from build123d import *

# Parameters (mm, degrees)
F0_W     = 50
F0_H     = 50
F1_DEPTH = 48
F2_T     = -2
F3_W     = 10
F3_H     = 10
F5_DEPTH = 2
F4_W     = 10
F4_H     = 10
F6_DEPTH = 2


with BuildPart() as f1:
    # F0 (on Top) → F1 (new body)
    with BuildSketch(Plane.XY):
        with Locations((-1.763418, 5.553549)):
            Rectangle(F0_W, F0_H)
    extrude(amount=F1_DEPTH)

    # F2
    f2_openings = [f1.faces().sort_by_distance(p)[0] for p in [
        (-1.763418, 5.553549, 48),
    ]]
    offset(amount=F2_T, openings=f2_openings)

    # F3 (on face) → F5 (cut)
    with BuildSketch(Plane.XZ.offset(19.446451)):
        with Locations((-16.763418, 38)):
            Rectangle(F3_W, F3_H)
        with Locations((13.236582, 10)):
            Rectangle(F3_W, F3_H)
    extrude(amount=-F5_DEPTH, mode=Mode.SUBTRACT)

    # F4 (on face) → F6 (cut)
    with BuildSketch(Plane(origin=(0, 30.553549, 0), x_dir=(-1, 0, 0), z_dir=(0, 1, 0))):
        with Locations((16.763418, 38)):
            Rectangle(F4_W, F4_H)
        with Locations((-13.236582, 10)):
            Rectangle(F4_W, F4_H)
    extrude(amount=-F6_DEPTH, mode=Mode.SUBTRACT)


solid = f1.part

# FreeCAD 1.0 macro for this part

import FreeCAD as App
import Part
import Sketcher
Q = App.Units.Quantity


def faces_at(feature, points):
    """Names of the faces that lie closest to the given points."""
    faces = feature.Shape.Faces
    near = lambda p: min(range(len(faces)), key=lambda i: faces[i].distToShape(Part.Vertex(*p))[0])
    return sorted({f"Face{near(p) + 1}" for p in points})

doc = App.newDocument("Part")
body = doc.addObject("PartDesign::Body", "Body")

sketch1 = body.newObject("Sketcher::SketchObject", "Sketch")
sketch1.AttachmentSupport = (doc.getObject("XY_Plane"), [""])
sketch1.MapMode = "FlatFace"
sketch1.addGeometry([
    Part.LineSegment(App.Vector(-27, 31, 0), App.Vector(-27, -19, 0)),
    Part.LineSegment(App.Vector(-27, -19, 0), App.Vector(23, -19, 0)),
    Part.LineSegment(App.Vector(23, -19, 0), App.Vector(23, 31, 0)),
    Part.LineSegment(App.Vector(23, 31, 0), App.Vector(-27, 31, 0)),
], False)
sketch1.addConstraint([
    Sketcher.Constraint("Coincident", 0, 2, 1, 1),
    Sketcher.Constraint("Coincident", 1, 2, 2, 1),
    Sketcher.Constraint("Coincident", 2, 2, 3, 1),
    Sketcher.Constraint("Coincident", 3, 2, 0, 1),
    Sketcher.Constraint("Vertical", 0),
    Sketcher.Constraint("Horizontal", 1),
    Sketcher.Constraint("Vertical", 2),
    Sketcher.Constraint("Horizontal", 3),
    Sketcher.Constraint("Equal", 3, 0),
    Sketcher.Constraint("DistanceX", 1, 1, 1, 2, Q("50 mm")),
    Sketcher.Constraint("DistanceX", 0, 2, -1, 1, Q("26.763418 mm")),
    Sketcher.Constraint("DistanceY", 0, 2, -1, 1, Q("19.446451 mm")),
])
pad1 = body.newObject("PartDesign::Pad", "Pad")
pad1.Profile = sketch1
pad1.Length = 48
doc.recompute()

thickness = body.newObject("PartDesign::Thickness", "Thickness")
thickness.Base = (pad1, faces_at(pad1, [(-1.763, 5.554, 48)]))
thickness.Value = 2
thickness.Reversed = True
thickness.Join = "Arc"

sketch2 = body.newObject("Sketcher::SketchObject", "Sketch001")
sketch2.AttachmentSupport = (doc.getObject("XZ_Plane"), [""])
sketch2.MapMode = "FlatFace"
sketch2.AttachmentOffset = App.Placement(App.Vector(0, 0, 19.446451), App.Rotation())
sketch2.addGeometry([
    Part.LineSegment(App.Vector(-22, 43, 0), App.Vector(-22, 33, 0)),
    Part.LineSegment(App.Vector(-22, 33, 0), App.Vector(-12, 33, 0)),
    Part.LineSegment(App.Vector(-12, 33, 0), App.Vector(-12, 43, 0)),
    Part.LineSegment(App.Vector(-12, 43, 0), App.Vector(-22, 43, 0)),
    Part.LineSegment(App.Vector(8, 15, 0), App.Vector(8, 5, 0)),
    Part.LineSegment(App.Vector(8, 5, 0), App.Vector(18, 5, 0)),
    Part.LineSegment(App.Vector(18, 5, 0), App.Vector(18, 15, 0)),
    Part.LineSegment(App.Vector(18, 15, 0), App.Vector(8, 15, 0)),
], False)
sketch2.addConstraint([
    Sketcher.Constraint("Coincident", 0, 2, 1, 1),
    Sketcher.Constraint("Coincident", 1, 2, 2, 1),
    Sketcher.Constraint("Coincident", 2, 2, 3, 1),
    Sketcher.Constraint("Coincident", 3, 2, 0, 1),
    Sketcher.Constraint("Coincident", 4, 2, 5, 1),
    Sketcher.Constraint("Coincident", 5, 2, 6, 1),
    Sketcher.Constraint("Coincident", 6, 2, 7, 1),
    Sketcher.Constraint("Coincident", 7, 2, 4, 1),
    Sketcher.Constraint("Vertical", 0),
    Sketcher.Constraint("Horizontal", 1),
    Sketcher.Constraint("Vertical", 2),
    Sketcher.Constraint("Horizontal", 3),
    Sketcher.Constraint("Vertical", 4),
    Sketcher.Constraint("Horizontal", 5),
    Sketcher.Constraint("Vertical", 6),
    Sketcher.Constraint("Horizontal", 7),
    Sketcher.Constraint("Equal", 3, 5),
    Sketcher.Constraint("Equal", 7, 0),
    Sketcher.Constraint("Equal", 2, 4),
    Sketcher.Constraint("DistanceX", 1, 1, 1, 2, Q("10 mm")),
    Sketcher.Constraint("DistanceY", -1, 1, 0, 2, Q("33 mm")),
    Sketcher.Constraint("DistanceY", -1, 1, 4, 2, Q("5 mm")),
    Sketcher.Constraint("DistanceX", 1, 2, 4, 2, Q("20 mm")),
    Sketcher.Constraint("DistanceX", 0, 2, -1, 1, Q("21.763418 mm")),
])
pocket1 = body.newObject("PartDesign::Pocket", "Pocket")
pocket1.Profile = sketch2
pocket1.Length = 2

sketch3 = body.newObject("Sketcher::SketchObject", "Sketch002")
sketch3.AttachmentSupport = (doc.getObject("XZ_Plane"), [""])
sketch3.MapMode = "FlatFace"
sketch3.AttachmentOffset = App.Placement(App.Vector(0, 0, -30.553549), App.Rotation())
sketch3.addGeometry([
    Part.LineSegment(App.Vector(-12, 43, 0), App.Vector(-12, 33, 0)),
    Part.LineSegment(App.Vector(-12, 33, 0), App.Vector(-22, 33, 0)),
    Part.LineSegment(App.Vector(-22, 33, 0), App.Vector(-22, 43, 0)),
    Part.LineSegment(App.Vector(-22, 43, 0), App.Vector(-12, 43, 0)),
    Part.LineSegment(App.Vector(18, 15, 0), App.Vector(18, 5, 0)),
    Part.LineSegment(App.Vector(18, 5, 0), App.Vector(8, 5, 0)),
    Part.LineSegment(App.Vector(8, 5, 0), App.Vector(8, 15, 0)),
    Part.LineSegment(App.Vector(8, 15, 0), App.Vector(18, 15, 0)),
], False)
sketch3.addConstraint([
    Sketcher.Constraint("Coincident", 0, 2, 1, 1),
    Sketcher.Constraint("Coincident", 1, 2, 2, 1),
    Sketcher.Constraint("Coincident", 2, 2, 3, 1),
    Sketcher.Constraint("Coincident", 3, 2, 0, 1),
    Sketcher.Constraint("Coincident", 4, 2, 5, 1),
    Sketcher.Constraint("Coincident", 5, 2, 6, 1),
    Sketcher.Constraint("Coincident", 6, 2, 7, 1),
    Sketcher.Constraint("Coincident", 7, 2, 4, 1),
    Sketcher.Constraint("Vertical", 0),
    Sketcher.Constraint("Horizontal", 1),
    Sketcher.Constraint("Vertical", 2),
    Sketcher.Constraint("Horizontal", 3),
    Sketcher.Constraint("Vertical", 4),
    Sketcher.Constraint("Horizontal", 5),
    Sketcher.Constraint("Vertical", 6),
    Sketcher.Constraint("Horizontal", 7),
    Sketcher.Constraint("Equal", 3, 5),
    Sketcher.Constraint("Equal", 7, 0),
    Sketcher.Constraint("Equal", 2, 4),
    Sketcher.Constraint("DistanceX", 1, 2, 1, 1, Q("10 mm")),
    Sketcher.Constraint("DistanceY", -1, 1, 0, 2, Q("33 mm")),
    Sketcher.Constraint("DistanceY", -1, 1, 4, 2, Q("5 mm")),
    Sketcher.Constraint("DistanceX", 0, 2, 4, 2, Q("30 mm")),
    Sketcher.Constraint("DistanceX", 1, 2, -1, 1, Q("21.763418 mm")),
])
pocket2 = body.newObject("PartDesign::Pocket", "Pocket001")
pocket2.Profile = sketch3
pocket2.Length = 2
pocket2.Reversed = True

doc.recompute()
